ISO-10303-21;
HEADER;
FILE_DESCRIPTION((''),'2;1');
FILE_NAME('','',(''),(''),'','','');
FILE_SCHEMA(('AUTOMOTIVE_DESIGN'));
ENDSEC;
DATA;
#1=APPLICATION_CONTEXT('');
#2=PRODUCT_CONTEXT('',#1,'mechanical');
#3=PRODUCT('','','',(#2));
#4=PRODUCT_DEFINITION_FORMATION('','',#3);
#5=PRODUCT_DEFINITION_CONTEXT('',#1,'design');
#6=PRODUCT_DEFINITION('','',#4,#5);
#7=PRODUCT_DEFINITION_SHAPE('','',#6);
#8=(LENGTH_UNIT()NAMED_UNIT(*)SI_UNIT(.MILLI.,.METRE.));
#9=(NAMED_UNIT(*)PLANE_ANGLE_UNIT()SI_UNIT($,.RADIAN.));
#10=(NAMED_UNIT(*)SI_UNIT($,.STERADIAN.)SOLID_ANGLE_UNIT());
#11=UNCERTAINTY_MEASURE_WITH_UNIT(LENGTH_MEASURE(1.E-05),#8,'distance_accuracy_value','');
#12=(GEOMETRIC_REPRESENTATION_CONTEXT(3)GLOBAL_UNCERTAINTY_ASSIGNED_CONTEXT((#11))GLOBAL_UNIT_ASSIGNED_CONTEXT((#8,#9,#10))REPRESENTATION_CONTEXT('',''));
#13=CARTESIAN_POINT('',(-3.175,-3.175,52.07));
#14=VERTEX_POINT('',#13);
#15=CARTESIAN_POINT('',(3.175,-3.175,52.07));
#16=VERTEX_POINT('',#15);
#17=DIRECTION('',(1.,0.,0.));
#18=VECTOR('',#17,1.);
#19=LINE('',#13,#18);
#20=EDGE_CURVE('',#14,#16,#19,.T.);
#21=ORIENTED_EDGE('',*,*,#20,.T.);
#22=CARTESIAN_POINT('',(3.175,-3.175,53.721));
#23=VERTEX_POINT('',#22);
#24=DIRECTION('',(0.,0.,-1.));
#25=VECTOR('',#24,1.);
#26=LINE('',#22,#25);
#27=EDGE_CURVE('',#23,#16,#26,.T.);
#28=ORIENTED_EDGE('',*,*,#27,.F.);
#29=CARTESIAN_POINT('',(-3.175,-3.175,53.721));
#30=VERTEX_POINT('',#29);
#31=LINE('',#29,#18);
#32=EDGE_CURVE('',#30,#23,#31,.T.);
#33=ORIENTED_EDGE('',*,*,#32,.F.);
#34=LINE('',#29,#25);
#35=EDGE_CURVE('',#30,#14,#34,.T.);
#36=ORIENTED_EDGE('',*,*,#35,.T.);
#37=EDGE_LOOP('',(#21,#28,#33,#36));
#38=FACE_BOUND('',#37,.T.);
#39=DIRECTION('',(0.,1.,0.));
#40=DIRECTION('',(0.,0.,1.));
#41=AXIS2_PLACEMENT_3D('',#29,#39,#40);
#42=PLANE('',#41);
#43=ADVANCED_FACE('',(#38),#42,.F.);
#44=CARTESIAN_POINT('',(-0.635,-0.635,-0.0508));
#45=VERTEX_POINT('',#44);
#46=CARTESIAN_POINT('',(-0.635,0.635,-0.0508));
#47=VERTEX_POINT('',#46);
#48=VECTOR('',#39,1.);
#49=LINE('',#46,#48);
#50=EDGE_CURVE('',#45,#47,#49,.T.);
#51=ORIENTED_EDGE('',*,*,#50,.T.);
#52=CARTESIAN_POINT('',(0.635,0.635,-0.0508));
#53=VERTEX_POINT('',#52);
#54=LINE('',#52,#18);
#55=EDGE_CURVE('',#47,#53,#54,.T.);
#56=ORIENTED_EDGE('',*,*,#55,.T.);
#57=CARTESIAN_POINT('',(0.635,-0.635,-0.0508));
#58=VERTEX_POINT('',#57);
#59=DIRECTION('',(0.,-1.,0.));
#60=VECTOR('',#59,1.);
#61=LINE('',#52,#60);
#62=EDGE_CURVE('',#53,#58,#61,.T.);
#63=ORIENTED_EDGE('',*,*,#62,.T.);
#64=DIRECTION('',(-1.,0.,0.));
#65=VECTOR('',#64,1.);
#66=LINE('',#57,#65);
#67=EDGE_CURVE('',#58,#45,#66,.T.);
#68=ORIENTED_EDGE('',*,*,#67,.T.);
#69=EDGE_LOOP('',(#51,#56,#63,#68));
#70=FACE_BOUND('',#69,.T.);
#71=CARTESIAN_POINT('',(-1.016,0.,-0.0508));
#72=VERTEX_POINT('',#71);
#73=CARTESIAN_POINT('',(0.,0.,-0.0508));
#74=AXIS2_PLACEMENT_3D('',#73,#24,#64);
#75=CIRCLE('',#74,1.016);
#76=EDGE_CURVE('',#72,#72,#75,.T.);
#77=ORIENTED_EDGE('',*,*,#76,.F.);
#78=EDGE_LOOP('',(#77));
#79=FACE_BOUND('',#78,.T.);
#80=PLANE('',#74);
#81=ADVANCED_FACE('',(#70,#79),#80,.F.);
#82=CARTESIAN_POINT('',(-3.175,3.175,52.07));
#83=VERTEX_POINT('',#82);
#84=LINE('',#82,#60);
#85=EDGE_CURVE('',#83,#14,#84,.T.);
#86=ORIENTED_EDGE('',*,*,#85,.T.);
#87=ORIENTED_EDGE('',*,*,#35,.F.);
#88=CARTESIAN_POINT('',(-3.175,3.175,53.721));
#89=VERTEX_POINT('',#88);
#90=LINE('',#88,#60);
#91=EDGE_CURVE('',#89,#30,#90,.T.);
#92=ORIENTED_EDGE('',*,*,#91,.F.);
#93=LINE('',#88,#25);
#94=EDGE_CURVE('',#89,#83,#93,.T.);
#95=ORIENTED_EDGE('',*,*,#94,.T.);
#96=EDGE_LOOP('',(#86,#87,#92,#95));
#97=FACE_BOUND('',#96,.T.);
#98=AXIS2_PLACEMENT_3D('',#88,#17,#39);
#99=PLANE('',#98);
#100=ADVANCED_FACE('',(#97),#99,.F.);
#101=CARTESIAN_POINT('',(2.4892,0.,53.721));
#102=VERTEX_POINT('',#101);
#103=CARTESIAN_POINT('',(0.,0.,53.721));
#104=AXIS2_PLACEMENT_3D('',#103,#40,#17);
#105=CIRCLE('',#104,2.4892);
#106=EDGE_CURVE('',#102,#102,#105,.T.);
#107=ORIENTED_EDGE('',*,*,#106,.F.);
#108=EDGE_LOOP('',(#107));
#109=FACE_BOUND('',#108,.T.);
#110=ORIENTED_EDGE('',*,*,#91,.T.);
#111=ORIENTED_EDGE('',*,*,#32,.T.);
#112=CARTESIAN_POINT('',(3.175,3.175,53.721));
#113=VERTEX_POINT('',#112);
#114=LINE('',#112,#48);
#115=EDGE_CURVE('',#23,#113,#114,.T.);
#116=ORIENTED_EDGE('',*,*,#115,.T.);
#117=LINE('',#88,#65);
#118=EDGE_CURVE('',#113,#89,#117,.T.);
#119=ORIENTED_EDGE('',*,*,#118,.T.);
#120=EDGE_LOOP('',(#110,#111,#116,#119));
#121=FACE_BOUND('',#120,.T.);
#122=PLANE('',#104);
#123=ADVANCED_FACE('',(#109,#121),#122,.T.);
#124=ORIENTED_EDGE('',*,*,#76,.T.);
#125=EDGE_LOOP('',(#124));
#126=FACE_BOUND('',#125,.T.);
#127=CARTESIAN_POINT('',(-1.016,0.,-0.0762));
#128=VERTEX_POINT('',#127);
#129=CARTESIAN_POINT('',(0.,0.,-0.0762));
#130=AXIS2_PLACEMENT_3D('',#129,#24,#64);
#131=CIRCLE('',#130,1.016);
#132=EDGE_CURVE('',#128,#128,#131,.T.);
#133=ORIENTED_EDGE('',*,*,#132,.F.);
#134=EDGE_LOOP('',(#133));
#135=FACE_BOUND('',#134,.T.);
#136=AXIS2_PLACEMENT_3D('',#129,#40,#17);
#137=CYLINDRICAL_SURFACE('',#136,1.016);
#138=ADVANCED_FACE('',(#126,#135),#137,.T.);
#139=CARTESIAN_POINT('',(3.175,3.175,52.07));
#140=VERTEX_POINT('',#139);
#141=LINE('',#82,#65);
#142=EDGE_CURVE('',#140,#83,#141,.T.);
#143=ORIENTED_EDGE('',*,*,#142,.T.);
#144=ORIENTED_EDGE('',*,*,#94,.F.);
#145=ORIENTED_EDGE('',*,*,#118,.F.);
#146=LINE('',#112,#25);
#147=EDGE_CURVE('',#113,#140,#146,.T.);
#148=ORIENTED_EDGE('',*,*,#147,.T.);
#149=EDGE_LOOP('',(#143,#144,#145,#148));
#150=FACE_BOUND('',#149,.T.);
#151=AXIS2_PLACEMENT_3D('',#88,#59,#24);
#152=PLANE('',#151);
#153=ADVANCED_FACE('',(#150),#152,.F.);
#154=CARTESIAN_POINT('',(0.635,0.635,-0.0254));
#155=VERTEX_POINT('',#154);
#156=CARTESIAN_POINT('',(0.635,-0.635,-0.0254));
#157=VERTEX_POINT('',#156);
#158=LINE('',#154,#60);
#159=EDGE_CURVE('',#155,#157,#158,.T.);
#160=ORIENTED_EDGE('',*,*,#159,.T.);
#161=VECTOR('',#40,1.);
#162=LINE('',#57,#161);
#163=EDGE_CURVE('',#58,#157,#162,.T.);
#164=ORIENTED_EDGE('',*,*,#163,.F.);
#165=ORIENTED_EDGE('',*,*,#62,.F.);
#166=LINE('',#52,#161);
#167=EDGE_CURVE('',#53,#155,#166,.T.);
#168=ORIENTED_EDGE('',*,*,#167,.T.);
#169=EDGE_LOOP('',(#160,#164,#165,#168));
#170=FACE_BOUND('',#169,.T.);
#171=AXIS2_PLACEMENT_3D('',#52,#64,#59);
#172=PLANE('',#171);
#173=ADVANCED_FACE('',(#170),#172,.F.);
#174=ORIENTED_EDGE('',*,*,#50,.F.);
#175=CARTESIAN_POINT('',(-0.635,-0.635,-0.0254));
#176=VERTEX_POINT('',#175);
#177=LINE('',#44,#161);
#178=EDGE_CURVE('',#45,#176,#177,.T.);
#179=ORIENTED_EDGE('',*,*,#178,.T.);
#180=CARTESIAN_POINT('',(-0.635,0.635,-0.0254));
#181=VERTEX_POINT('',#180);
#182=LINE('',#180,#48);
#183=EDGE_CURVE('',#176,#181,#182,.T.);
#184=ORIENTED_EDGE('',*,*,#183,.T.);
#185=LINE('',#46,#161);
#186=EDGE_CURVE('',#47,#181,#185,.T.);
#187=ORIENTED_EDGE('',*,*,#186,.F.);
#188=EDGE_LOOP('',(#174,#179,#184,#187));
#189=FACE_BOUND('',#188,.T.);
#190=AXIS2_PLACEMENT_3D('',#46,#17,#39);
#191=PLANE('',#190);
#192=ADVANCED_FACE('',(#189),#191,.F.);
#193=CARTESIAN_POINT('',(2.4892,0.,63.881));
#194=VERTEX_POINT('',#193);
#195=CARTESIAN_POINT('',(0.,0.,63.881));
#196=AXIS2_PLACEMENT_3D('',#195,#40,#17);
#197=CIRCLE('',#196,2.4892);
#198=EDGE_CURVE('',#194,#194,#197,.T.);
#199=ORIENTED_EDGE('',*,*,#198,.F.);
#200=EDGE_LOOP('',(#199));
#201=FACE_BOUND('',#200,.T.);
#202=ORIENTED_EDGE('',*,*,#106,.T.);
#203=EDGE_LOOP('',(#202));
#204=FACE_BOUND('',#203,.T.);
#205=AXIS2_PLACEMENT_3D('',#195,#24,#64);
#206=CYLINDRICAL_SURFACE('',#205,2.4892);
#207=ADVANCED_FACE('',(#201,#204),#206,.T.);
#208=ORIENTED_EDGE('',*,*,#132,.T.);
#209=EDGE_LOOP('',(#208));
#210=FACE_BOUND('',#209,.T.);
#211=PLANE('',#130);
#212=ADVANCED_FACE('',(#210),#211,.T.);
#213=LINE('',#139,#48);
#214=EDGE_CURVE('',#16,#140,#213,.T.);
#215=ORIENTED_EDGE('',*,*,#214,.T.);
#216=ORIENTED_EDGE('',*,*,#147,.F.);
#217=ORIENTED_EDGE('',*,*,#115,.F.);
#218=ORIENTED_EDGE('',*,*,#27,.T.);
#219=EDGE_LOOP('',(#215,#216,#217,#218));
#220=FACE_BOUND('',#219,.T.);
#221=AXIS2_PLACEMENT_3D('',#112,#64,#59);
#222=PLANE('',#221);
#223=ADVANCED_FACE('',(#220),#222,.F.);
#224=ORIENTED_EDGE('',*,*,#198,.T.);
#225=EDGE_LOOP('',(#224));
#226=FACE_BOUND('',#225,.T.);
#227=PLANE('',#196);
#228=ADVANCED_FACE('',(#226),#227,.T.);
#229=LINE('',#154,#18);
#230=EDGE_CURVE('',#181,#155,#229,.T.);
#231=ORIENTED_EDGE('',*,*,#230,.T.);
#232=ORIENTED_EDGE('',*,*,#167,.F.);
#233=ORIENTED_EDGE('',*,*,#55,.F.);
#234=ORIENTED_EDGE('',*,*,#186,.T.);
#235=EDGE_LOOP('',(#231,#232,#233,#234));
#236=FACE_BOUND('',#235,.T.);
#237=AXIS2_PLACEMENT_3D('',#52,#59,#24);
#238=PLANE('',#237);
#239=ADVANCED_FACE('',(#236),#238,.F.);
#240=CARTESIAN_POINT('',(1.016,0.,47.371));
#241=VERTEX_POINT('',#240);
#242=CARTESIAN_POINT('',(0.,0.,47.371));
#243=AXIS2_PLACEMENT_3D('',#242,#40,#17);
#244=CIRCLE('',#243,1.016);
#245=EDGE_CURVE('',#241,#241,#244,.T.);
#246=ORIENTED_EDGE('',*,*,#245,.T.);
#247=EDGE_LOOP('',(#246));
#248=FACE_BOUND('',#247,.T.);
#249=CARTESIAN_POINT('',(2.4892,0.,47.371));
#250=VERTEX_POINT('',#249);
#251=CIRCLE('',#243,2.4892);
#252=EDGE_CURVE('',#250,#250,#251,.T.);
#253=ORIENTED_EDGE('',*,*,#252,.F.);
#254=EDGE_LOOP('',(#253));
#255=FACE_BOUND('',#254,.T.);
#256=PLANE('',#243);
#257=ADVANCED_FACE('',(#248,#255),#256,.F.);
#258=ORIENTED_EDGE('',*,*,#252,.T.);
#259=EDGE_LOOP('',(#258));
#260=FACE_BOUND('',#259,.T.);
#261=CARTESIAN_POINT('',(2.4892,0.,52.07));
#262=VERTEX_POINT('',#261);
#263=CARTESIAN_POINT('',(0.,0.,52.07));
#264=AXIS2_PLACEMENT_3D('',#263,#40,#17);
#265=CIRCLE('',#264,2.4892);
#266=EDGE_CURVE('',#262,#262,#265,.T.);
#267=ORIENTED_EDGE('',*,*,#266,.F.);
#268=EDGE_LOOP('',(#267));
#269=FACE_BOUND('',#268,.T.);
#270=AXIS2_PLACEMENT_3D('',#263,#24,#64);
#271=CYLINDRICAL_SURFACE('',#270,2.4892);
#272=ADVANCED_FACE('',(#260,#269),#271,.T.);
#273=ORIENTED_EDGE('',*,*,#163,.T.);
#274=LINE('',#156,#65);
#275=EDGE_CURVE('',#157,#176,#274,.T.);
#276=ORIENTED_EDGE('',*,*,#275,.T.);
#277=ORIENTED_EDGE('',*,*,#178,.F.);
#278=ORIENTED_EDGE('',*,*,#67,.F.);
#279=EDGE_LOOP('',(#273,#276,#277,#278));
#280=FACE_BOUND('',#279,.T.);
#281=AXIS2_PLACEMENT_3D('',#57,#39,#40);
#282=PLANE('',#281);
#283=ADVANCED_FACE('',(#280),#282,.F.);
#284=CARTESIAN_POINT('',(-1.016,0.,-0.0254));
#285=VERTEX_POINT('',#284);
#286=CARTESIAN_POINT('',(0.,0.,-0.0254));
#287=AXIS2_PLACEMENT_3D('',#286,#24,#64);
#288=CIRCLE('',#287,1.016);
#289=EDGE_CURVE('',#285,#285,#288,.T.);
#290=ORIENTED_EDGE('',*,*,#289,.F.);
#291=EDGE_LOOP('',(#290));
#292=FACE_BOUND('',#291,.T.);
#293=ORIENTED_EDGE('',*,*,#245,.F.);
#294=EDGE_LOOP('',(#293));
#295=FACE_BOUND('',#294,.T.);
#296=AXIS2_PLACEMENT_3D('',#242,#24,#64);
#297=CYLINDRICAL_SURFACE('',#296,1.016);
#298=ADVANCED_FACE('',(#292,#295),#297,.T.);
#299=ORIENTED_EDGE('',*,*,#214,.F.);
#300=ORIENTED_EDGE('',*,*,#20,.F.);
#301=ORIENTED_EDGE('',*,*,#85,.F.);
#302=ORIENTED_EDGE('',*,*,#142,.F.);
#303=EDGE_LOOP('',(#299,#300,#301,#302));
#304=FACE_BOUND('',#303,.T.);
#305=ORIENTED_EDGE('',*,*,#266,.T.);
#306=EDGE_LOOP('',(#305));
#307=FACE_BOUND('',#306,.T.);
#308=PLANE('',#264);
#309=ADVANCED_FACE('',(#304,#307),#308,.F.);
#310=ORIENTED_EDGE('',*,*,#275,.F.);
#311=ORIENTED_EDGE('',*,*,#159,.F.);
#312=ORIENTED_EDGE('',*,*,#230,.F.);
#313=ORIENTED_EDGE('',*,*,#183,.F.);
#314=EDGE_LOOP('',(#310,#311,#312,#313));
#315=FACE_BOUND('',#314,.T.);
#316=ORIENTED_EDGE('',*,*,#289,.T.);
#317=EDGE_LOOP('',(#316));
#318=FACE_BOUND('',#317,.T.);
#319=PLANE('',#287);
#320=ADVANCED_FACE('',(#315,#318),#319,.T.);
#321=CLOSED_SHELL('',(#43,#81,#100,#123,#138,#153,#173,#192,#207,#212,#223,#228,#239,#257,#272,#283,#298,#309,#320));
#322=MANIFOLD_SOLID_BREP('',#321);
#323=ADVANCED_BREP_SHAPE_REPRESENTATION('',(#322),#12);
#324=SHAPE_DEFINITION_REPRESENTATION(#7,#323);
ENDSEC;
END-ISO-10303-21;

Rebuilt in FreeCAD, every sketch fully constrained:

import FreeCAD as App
import Part
import Sketcher
Q = App.Units.Quantity

doc = App.newDocument("Part")
body = doc.addObject("PartDesign::Body", "Body")

# Sketch on XY plane
sketch1 = body.newObject("Sketcher::SketchObject", "Sketch")
sketch1.AttachmentSupport = (doc.getObject("XY_Plane"), [""])
sketch1.MapMode = "FlatFace"
sketch1.addGeometry(Part.Circle(App.Vector(0, 0, 0), App.Vector(0, 0, 1), 1), False)
sketch1.addConstraint([
    Sketcher.Constraint("Coincident", 0, 3, -1, 1),
    Sketcher.Constraint("Diameter", 0, Q("0.08 in")),
])
pad1 = body.newObject("PartDesign::Pad", "Pad")
pad1.Profile = sketch1
pad1.Length = Q("1.865 in")

# Sketch on XY plane
sketch2 = body.newObject("Sketcher::SketchObject", "Sketch001")
sketch2.AttachmentSupport = (doc.getObject("XY_Plane"), [""])
sketch2.MapMode = "FlatFace"
sketch2.AttachmentOffset = App.Placement(App.Vector(0, 0, -0.001 * 25.4), App.Rotation())
sketch2.addGeometry(Part.Circle(App.Vector(0, 0, 0), App.Vector(0, 0, 1), 1), False)
sketch2.addConstraint([
    Sketcher.Constraint("Coincident", 0, 3, -1, 1),
    Sketcher.Constraint("Diameter", 0, Q("0.08 in")),
])
pad2 = body.newObject("PartDesign::Pad", "Pad001")
pad2.Profile = sketch2
pad2.Length = Q("0.001 in")

# Sketch on XY plane
sketch3 = body.newObject("Sketcher::SketchObject", "Sketch002")
sketch3.AttachmentSupport = (doc.getObject("XY_Plane"), [""])
sketch3.MapMode = "FlatFace"
sketch3.AttachmentOffset = App.Placement(App.Vector(0, 0, -0.001 * 25.4), App.Rotation())
sketch3.addGeometry([
    Part.LineSegment(App.Vector(0.6, 0.6, 0), App.Vector(0.6, -0.6, 0)),
    Part.LineSegment(App.Vector(0.6, -0.6, 0), App.Vector(-0.6, -0.6, 0)),
    Part.LineSegment(App.Vector(-0.6, -0.6, 0), App.Vector(-0.6, 0.6, 0)),
    Part.LineSegment(App.Vector(-0.6, 0.6, 0), App.Vector(0.6, 0.6, 0)),
], False)
sketch3.addConstraint([
    Sketcher.Constraint("Coincident", 0, 2, 1, 1),
    Sketcher.Constraint("Coincident", 1, 2, 2, 1),
    Sketcher.Constraint("Coincident", 2, 2, 3, 1),
    Sketcher.Constraint("Coincident", 3, 2, 0, 1),
    Sketcher.Constraint("Vertical", 0),
    Sketcher.Constraint("Horizontal", 1),
    Sketcher.Constraint("Vertical", 2),
    Sketcher.Constraint("Horizontal", 3),
    Sketcher.Constraint("Symmetric", 0, 2, 2, 2, -1, 1),
    Sketcher.Constraint("Equal", 3, 0),
    Sketcher.Constraint("DistanceX", 1, 2, 1, 1, Q("0.05 in")),
])
pad3 = body.newObject("PartDesign::Pad", "Pad002")
pad3.Profile = sketch3
pad3.Length = Q("0.001 in")
pad3.Reversed = True

# Sketch on XY plane
sketch4 = body.newObject("Sketcher::SketchObject", "Sketch003")
sketch4.AttachmentSupport = (doc.getObject("XY_Plane"), [""])
sketch4.MapMode = "FlatFace"
sketch4.AttachmentOffset = App.Placement(App.Vector(0, 0, -0.003 * 25.4), App.Rotation())
sketch4.addGeometry(Part.Circle(App.Vector(0, 0, 0), App.Vector(0, 0, 1), 1), False)
sketch4.addConstraint([
    Sketcher.Constraint("Coincident", 0, 3, -1, 1),
    Sketcher.Constraint("Diameter", 0, Q("0.08 in")),
])
pad4 = body.newObject("PartDesign::Pad", "Pad003")
pad4.Profile = sketch4
pad4.Length = Q("0.001 in")

# Sketch on XY plane
sketch5 = body.newObject("Sketcher::SketchObject", "Sketch004")
sketch5.AttachmentSupport = (doc.getObject("XY_Plane"), [""])
sketch5.MapMode = "FlatFace"
sketch5.AttachmentOffset = App.Placement(App.Vector(0, 0, 1.865 * 25.4), App.Rotation())
sketch5.addGeometry(Part.Circle(App.Vector(0, 0, 0), App.Vector(0, 0, 1), 2.5), False)
sketch5.addConstraint([
    Sketcher.Constraint("Coincident", 0, 3, -1, 1),
    Sketcher.Constraint("Diameter", 0, Q("0.196 in")),
])
pad5 = body.newObject("PartDesign::Pad", "Pad004")
pad5.Profile = sketch5
pad5.Length = Q("0.185 in")

# Sketch on XY plane
sketch6 = body.newObject("Sketcher::SketchObject", "Sketch005")
sketch6.AttachmentSupport = (doc.getObject("XY_Plane"), [""])
sketch6.MapMode = "FlatFace"
sketch6.AttachmentOffset = App.Placement(App.Vector(0, 0, 2.05 * 25.4), App.Rotation())
sketch6.addGeometry([
    Part.LineSegment(App.Vector(-3, 3, 0), App.Vector(-3, -3, 0)),
    Part.LineSegment(App.Vector(-3, -3, 0), App.Vector(3, -3, 0)),
    Part.LineSegment(App.Vector(3, -3, 0), App.Vector(3, 3, 0)),
    Part.LineSegment(App.Vector(3, 3, 0), App.Vector(-3, 3, 0)),
], False)
sketch6.addConstraint([
    Sketcher.Constraint("Coincident", 0, 2, 1, 1),
    Sketcher.Constraint("Coincident", 1, 2, 2, 1),
    Sketcher.Constraint("Coincident", 2, 2, 3, 1),
    Sketcher.Constraint("Coincident", 3, 2, 0, 1),
    Sketcher.Constraint("Vertical", 0),
    Sketcher.Constraint("Horizontal", 1),
    Sketcher.Constraint("Vertical", 2),
    Sketcher.Constraint("Horizontal", 3),
    Sketcher.Constraint("Symmetric", 0, 2, 2, 2, -1, 1),
    Sketcher.Constraint("Equal", 3, 0),
    Sketcher.Constraint("DistanceX", 1, 1, 1, 2, Q("0.25 in")),
])
pad6 = body.newObject("PartDesign::Pad", "Pad005")
pad6.Profile = sketch6
pad6.Length = Q("0.065 in")

# Sketch on XY plane
sketch7 = body.newObject("Sketcher::SketchObject", "Sketch006")
sketch7.AttachmentSupport = (doc.getObject("XY_Plane"), [""])
sketch7.MapMode = "FlatFace"
sketch7.AttachmentOffset = App.Placement(App.Vector(0, 0, 2.115 * 25.4), App.Rotation())
sketch7.addGeometry(Part.Circle(App.Vector(0, 0, 0), App.Vector(0, 0, 1), 2.5), False)
sketch7.addConstraint([
    Sketcher.Constraint("Coincident", 0, 3, -1, 1),
    Sketcher.Constraint("Diameter", 0, Q("0.196 in")),
])
pad7 = body.newObject("PartDesign::Pad", "Pad006")
pad7.Profile = sketch7
pad7.Length = Q("0.4 in")

doc.recompute()
